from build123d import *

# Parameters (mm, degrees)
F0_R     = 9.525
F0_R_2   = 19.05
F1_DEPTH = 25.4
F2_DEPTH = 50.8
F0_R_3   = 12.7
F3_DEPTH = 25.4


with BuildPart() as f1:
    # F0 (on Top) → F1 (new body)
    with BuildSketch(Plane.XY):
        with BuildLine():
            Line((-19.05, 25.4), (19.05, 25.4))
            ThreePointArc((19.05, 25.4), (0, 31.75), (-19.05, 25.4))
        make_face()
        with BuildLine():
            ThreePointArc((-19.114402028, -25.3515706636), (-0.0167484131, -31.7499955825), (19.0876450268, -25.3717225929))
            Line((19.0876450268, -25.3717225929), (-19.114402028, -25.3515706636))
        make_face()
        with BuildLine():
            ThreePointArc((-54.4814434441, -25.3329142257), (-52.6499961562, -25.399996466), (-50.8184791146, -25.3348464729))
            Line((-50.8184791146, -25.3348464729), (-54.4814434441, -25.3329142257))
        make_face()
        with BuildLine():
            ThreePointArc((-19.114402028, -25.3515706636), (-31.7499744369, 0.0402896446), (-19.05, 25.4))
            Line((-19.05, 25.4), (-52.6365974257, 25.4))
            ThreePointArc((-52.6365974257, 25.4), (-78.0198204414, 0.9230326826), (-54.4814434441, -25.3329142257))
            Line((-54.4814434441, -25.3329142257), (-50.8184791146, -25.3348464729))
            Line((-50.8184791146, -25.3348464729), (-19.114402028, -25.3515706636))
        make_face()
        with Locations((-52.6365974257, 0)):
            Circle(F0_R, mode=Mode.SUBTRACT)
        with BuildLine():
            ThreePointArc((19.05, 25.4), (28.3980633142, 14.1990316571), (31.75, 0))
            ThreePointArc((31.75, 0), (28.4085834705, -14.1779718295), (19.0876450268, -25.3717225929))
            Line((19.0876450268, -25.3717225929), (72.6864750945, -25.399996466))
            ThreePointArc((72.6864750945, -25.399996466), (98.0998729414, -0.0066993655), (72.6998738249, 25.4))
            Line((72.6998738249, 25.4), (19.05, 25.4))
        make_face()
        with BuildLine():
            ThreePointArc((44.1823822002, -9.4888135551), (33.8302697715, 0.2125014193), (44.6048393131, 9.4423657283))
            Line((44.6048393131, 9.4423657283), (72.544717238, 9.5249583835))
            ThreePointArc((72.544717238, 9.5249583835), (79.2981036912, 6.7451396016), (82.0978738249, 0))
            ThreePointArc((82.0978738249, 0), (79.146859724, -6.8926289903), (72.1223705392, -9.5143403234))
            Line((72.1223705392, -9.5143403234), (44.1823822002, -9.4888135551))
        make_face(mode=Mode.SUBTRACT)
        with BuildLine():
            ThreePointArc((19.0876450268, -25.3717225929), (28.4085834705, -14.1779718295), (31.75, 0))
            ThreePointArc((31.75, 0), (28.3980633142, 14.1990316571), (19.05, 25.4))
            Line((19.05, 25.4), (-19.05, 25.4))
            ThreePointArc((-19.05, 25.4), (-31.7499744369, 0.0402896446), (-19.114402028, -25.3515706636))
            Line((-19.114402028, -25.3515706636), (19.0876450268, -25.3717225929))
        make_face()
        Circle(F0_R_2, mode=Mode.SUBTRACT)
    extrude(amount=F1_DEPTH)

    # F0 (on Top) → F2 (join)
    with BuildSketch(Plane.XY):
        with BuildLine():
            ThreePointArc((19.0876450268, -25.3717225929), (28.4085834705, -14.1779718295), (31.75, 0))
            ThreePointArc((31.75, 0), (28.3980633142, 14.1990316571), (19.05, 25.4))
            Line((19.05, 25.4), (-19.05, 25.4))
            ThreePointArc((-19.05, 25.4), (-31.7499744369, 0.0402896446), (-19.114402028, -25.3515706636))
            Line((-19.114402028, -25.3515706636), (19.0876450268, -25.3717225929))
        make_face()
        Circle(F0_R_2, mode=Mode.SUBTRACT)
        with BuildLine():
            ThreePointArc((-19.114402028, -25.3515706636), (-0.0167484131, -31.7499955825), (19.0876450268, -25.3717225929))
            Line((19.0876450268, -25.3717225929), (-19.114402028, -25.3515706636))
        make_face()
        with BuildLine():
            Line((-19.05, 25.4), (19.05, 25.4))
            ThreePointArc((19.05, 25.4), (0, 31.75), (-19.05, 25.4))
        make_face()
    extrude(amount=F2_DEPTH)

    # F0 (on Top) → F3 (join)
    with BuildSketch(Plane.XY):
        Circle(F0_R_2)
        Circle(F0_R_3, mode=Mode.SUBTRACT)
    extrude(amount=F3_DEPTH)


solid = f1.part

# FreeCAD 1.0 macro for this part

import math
import FreeCAD as App
import Part
import Sketcher
from FreeCAD import Vector
Q = App.Units.Quantity

doc = App.newDocument("Part")
body = doc.addObject("PartDesign::Body", "Body")

sketch1 = doc.addObject("Sketcher::SketchObject", "Sketch")
body.addObject(sketch1)
sketch1.AttachmentSupport = (doc.XY_Plane, [""])
sketch1.MapMode = "FlatFace"
sketch1.addGeometry([
    Part.ArcOfCircle(Part.Circle(Vector(0, 0, 0), Vector(0, 0, 1), 31.8), math.radians(53), math.radians(127)),
    Part.LineSegment(Vector(-19.1, 25.4, 0), Vector(-52.6, 25.4, 0)),
    Part.ArcOfCircle(Part.Circle(Vector(-52.6, 0, 0), Vector(0, 0, 1), 25.4), math.radians(90), math.radians(266)),
    Part.ArcOfCircle(Part.Circle(Vector(-52.6, 0, 0), Vector(0, 0, 1), 25.4), math.radians(-94.17), math.radians(-85.9)),
    Part.LineSegment(Vector(-50.8, -25.3, 0), Vector(-19.1, -25.4, 0)),
    Part.ArcOfCircle(Part.Circle(Vector(0, 0, 0), Vector(0, 0, 1), 31.8), math.radians(-127), math.radians(-53)),
    Part.LineSegment(Vector(19.1, -25.4, 0), Vector(72.7, -25.4, 0)),
    Part.ArcOfCircle(Part.Circle(Vector(72.7, 0, 0), Vector(0, 0, 1), 25.4), math.radians(-90), math.radians(90)),
    Part.LineSegment(Vector(72.7, 25.4, 0), Vector(19.1, 25.4, 0)),
    Part.Circle(Vector(-52.6, 0, 0), Vector(0, 0, 1), 9.5),
    Part.Circle(Vector(0, 0, 0), Vector(0, 0, 1), 19.1),
    Part.LineSegment(Vector(44.6, 9.4, 0), Vector(72.5, 9.5, 0)),
    Part.ArcOfCircle(Part.Circle(Vector(72.6, 0, 0), Vector(0, 0, 1), 9.5), math.radians(0), math.radians(90)),
    Part.ArcOfCircle(Part.Circle(Vector(72.6, 0, 0), Vector(0, 0, 1), 9.5), math.radians(-93), math.radians(0)),
    Part.LineSegment(Vector(72.1, -9.5, 0), Vector(44.2, -9.5, 0)),
    Part.ArcOfCircle(Part.Circle(Vector(43.4, 0, 0), Vector(0, 0, 1), 9.5), math.radians(82), math.radians(275)),
], False)
sketch1.addConstraint([
    Sketcher.Constraint("Coincident", 0, 2, 1, 1),
    Sketcher.Constraint("Tangent", 1, 2, 2, 1),
    Sketcher.Constraint("Tangent", 2, 2, 3, 1),
    Sketcher.Constraint("Coincident", 3, 2, 4, 1),
    Sketcher.Constraint("Coincident", 4, 2, 5, 1),
    Sketcher.Constraint("Coincident", 5, 2, 6, 1),
    Sketcher.Constraint("Tangent", 6, 2, 7, 1),
    Sketcher.Constraint("Tangent", 7, 2, 8, 1),
    Sketcher.Constraint("Coincident", 8, 2, 0, 1),
    Sketcher.Constraint("Tangent", 11, 2, 12, 2),
    Sketcher.Constraint("Tangent", 12, 1, 13, 2),
    Sketcher.Constraint("Coincident", 13, 1, 14, 1),
    Sketcher.Constraint("Coincident", 14, 2, 15, 2),
    Sketcher.Constraint("Coincident", 15, 1, 11, 1),
    Sketcher.Constraint("Horizontal", 1),
    Sketcher.Constraint("Horizontal", 8),
    Sketcher.Constraint("Coincident", 0, 3, -1, 1),
    Sketcher.Constraint("Coincident", 5, 3, -1, 1),
    Sketcher.Constraint("Coincident", 10, 3, -1, 1),
    Sketcher.Constraint("Coincident", 9, 3, 2, 3),
    Sketcher.Constraint("Equal", 2, 3),
    Sketcher.Constraint("Equal", 0, 5),
    Sketcher.Constraint("Equal", 3, 7),
    Sketcher.Constraint("Equal", 9, 12),
    Sketcher.Constraint("Equal", 12, 13),
    Sketcher.Constraint("Equal", 13, 15),
    Sketcher.Constraint("PointOnObject", 2, 3, -1),
    Sketcher.Constraint("PointOnObject", 7, 3, -1),
    Sketcher.Constraint("PointOnObject", 12, 3, -1),
    Sketcher.Constraint("PointOnObject", 15, 3, -1),
    Sketcher.Constraint("PointOnObject", 12, 1, -1),
    Sketcher.Constraint("Parallel", 4, 6),
    Sketcher.Constraint("Equal", 11, 14),
    Sketcher.Constraint("Radius", 2, Q("1 in")),
    Sketcher.Constraint("Diameter", 10, Q("1.5 in")),
    Sketcher.Constraint("Diameter", 9, Q("0.75 in")),
    Sketcher.Constraint("Radius", 0, Q("1.25 in")),
    Sketcher.Constraint("Distance", 11, Q("1.1 in")),
    Sketcher.Constraint("DistanceX", 7, 3, 12, 1, Q("0.37 in")),
    Sketcher.Constraint("DistanceX", -1, 1, 15, 3, 43.352899),
    Sketcher.Constraint("DistanceX", 6, 2, 7, 3, 0.013399),
    Sketcher.Constraint("Distance", 4, 31.704081),
    Sketcher.Constraint("DistanceX", 1, 2, 1, 1, 33.586597),
    Sketcher.Constraint("DistanceX", 8, 2, 8, 1, 53.649874),
    Sketcher.Constraint("DistanceX", -1, 1, 13, 1, 72.122371),
    Sketcher.Constraint("DistanceX", 2, 2, 4, 2, 35.367041),
])
pad1 = doc.addObject("PartDesign::Pad", "Pad")
body.addObject(pad1)
pad1.Profile = sketch1
pad1.Length = Q("1 in")

sketch2 = doc.addObject("Sketcher::SketchObject", "Sketch001")
body.addObject(sketch2)
sketch2.AttachmentSupport = (doc.XY_Plane, [""])
sketch2.MapMode = "FlatFace"
sketch2.addGeometry([
    Part.ArcOfCircle(Part.Circle(Vector(0, 0, 0), Vector(0, 0, 1), 32), math.radians(-53), math.radians(0)),
    Part.ArcOfCircle(Part.Circle(Vector(0, 0, 0), Vector(0, 0, 1), 32), math.radians(0), math.radians(53)),
    Part.ArcOfCircle(Part.Circle(Vector(0, 0, 0), Vector(0, 0, 1), 32), math.radians(53), math.radians(233)),
    Part.ArcOfCircle(Part.Circle(Vector(0, 0, 0), Vector(0, 0, 1), 32), math.radians(-127), math.radians(-53)),
    Part.Circle(Vector(0, 0, 0), Vector(0, 0, 1), 19),
], False)
sketch2.addConstraint([
    Sketcher.Constraint("Tangent", 0, 2, 1, 1),
    Sketcher.Constraint("Tangent", 1, 2, 2, 1),
    Sketcher.Constraint("Tangent", 2, 2, 3, 1),
    Sketcher.Constraint("Tangent", 3, 2, 0, 1),
    Sketcher.Constraint("Coincident", 0, 3, -1, 1),
    Sketcher.Constraint("Coincident", 4, 3, -1, 1),
    Sketcher.Constraint("Equal", 0, 1),
    Sketcher.Constraint("PointOnObject", 0, 2, -1),
    Sketcher.Constraint("Diameter", 4, Q("1.5 in")),
    Sketcher.Constraint("Radius", 0, Q("1.25 in")),
    Sketcher.Constraint("DistanceY", -1, 1, 1, 2, Q("1 in")),
    Sketcher.Constraint("DistanceY", 2, 2, -1, 1, 25.351571),
    Sketcher.Constraint("DistanceX", -1, 1, 3, 2, 19.087645),
])
pad2 = doc.addObject("PartDesign::Pad", "Pad001")
body.addObject(pad2)
pad2.Profile = sketch2
pad2.Length = Q("2 in")

sketch3 = doc.addObject("Sketcher::SketchObject", "Sketch002")
body.addObject(sketch3)
sketch3.AttachmentSupport = (doc.XY_Plane, [""])
sketch3.MapMode = "FlatFace"
sketch3.addGeometry([
    Part.Circle(Vector(0, 0, 0), Vector(0, 0, 1), 19),
    Part.Circle(Vector(0, 0, 0), Vector(0, 0, 1), 13),
], False)
sketch3.addConstraint([
    Sketcher.Constraint("Coincident", 0, 3, -1, 1),
    Sketcher.Constraint("Coincident", 1, 3, -1, 1),
    Sketcher.Constraint("Diameter", 1, Q("1 in")),
    Sketcher.Constraint("Diameter", 0, Q("1.5 in")),
])
pad3 = doc.addObject("PartDesign::Pad", "Pad002")
body.addObject(pad3)
pad3.Profile = sketch3
pad3.Length = Q("1 in")

doc.recompute()
